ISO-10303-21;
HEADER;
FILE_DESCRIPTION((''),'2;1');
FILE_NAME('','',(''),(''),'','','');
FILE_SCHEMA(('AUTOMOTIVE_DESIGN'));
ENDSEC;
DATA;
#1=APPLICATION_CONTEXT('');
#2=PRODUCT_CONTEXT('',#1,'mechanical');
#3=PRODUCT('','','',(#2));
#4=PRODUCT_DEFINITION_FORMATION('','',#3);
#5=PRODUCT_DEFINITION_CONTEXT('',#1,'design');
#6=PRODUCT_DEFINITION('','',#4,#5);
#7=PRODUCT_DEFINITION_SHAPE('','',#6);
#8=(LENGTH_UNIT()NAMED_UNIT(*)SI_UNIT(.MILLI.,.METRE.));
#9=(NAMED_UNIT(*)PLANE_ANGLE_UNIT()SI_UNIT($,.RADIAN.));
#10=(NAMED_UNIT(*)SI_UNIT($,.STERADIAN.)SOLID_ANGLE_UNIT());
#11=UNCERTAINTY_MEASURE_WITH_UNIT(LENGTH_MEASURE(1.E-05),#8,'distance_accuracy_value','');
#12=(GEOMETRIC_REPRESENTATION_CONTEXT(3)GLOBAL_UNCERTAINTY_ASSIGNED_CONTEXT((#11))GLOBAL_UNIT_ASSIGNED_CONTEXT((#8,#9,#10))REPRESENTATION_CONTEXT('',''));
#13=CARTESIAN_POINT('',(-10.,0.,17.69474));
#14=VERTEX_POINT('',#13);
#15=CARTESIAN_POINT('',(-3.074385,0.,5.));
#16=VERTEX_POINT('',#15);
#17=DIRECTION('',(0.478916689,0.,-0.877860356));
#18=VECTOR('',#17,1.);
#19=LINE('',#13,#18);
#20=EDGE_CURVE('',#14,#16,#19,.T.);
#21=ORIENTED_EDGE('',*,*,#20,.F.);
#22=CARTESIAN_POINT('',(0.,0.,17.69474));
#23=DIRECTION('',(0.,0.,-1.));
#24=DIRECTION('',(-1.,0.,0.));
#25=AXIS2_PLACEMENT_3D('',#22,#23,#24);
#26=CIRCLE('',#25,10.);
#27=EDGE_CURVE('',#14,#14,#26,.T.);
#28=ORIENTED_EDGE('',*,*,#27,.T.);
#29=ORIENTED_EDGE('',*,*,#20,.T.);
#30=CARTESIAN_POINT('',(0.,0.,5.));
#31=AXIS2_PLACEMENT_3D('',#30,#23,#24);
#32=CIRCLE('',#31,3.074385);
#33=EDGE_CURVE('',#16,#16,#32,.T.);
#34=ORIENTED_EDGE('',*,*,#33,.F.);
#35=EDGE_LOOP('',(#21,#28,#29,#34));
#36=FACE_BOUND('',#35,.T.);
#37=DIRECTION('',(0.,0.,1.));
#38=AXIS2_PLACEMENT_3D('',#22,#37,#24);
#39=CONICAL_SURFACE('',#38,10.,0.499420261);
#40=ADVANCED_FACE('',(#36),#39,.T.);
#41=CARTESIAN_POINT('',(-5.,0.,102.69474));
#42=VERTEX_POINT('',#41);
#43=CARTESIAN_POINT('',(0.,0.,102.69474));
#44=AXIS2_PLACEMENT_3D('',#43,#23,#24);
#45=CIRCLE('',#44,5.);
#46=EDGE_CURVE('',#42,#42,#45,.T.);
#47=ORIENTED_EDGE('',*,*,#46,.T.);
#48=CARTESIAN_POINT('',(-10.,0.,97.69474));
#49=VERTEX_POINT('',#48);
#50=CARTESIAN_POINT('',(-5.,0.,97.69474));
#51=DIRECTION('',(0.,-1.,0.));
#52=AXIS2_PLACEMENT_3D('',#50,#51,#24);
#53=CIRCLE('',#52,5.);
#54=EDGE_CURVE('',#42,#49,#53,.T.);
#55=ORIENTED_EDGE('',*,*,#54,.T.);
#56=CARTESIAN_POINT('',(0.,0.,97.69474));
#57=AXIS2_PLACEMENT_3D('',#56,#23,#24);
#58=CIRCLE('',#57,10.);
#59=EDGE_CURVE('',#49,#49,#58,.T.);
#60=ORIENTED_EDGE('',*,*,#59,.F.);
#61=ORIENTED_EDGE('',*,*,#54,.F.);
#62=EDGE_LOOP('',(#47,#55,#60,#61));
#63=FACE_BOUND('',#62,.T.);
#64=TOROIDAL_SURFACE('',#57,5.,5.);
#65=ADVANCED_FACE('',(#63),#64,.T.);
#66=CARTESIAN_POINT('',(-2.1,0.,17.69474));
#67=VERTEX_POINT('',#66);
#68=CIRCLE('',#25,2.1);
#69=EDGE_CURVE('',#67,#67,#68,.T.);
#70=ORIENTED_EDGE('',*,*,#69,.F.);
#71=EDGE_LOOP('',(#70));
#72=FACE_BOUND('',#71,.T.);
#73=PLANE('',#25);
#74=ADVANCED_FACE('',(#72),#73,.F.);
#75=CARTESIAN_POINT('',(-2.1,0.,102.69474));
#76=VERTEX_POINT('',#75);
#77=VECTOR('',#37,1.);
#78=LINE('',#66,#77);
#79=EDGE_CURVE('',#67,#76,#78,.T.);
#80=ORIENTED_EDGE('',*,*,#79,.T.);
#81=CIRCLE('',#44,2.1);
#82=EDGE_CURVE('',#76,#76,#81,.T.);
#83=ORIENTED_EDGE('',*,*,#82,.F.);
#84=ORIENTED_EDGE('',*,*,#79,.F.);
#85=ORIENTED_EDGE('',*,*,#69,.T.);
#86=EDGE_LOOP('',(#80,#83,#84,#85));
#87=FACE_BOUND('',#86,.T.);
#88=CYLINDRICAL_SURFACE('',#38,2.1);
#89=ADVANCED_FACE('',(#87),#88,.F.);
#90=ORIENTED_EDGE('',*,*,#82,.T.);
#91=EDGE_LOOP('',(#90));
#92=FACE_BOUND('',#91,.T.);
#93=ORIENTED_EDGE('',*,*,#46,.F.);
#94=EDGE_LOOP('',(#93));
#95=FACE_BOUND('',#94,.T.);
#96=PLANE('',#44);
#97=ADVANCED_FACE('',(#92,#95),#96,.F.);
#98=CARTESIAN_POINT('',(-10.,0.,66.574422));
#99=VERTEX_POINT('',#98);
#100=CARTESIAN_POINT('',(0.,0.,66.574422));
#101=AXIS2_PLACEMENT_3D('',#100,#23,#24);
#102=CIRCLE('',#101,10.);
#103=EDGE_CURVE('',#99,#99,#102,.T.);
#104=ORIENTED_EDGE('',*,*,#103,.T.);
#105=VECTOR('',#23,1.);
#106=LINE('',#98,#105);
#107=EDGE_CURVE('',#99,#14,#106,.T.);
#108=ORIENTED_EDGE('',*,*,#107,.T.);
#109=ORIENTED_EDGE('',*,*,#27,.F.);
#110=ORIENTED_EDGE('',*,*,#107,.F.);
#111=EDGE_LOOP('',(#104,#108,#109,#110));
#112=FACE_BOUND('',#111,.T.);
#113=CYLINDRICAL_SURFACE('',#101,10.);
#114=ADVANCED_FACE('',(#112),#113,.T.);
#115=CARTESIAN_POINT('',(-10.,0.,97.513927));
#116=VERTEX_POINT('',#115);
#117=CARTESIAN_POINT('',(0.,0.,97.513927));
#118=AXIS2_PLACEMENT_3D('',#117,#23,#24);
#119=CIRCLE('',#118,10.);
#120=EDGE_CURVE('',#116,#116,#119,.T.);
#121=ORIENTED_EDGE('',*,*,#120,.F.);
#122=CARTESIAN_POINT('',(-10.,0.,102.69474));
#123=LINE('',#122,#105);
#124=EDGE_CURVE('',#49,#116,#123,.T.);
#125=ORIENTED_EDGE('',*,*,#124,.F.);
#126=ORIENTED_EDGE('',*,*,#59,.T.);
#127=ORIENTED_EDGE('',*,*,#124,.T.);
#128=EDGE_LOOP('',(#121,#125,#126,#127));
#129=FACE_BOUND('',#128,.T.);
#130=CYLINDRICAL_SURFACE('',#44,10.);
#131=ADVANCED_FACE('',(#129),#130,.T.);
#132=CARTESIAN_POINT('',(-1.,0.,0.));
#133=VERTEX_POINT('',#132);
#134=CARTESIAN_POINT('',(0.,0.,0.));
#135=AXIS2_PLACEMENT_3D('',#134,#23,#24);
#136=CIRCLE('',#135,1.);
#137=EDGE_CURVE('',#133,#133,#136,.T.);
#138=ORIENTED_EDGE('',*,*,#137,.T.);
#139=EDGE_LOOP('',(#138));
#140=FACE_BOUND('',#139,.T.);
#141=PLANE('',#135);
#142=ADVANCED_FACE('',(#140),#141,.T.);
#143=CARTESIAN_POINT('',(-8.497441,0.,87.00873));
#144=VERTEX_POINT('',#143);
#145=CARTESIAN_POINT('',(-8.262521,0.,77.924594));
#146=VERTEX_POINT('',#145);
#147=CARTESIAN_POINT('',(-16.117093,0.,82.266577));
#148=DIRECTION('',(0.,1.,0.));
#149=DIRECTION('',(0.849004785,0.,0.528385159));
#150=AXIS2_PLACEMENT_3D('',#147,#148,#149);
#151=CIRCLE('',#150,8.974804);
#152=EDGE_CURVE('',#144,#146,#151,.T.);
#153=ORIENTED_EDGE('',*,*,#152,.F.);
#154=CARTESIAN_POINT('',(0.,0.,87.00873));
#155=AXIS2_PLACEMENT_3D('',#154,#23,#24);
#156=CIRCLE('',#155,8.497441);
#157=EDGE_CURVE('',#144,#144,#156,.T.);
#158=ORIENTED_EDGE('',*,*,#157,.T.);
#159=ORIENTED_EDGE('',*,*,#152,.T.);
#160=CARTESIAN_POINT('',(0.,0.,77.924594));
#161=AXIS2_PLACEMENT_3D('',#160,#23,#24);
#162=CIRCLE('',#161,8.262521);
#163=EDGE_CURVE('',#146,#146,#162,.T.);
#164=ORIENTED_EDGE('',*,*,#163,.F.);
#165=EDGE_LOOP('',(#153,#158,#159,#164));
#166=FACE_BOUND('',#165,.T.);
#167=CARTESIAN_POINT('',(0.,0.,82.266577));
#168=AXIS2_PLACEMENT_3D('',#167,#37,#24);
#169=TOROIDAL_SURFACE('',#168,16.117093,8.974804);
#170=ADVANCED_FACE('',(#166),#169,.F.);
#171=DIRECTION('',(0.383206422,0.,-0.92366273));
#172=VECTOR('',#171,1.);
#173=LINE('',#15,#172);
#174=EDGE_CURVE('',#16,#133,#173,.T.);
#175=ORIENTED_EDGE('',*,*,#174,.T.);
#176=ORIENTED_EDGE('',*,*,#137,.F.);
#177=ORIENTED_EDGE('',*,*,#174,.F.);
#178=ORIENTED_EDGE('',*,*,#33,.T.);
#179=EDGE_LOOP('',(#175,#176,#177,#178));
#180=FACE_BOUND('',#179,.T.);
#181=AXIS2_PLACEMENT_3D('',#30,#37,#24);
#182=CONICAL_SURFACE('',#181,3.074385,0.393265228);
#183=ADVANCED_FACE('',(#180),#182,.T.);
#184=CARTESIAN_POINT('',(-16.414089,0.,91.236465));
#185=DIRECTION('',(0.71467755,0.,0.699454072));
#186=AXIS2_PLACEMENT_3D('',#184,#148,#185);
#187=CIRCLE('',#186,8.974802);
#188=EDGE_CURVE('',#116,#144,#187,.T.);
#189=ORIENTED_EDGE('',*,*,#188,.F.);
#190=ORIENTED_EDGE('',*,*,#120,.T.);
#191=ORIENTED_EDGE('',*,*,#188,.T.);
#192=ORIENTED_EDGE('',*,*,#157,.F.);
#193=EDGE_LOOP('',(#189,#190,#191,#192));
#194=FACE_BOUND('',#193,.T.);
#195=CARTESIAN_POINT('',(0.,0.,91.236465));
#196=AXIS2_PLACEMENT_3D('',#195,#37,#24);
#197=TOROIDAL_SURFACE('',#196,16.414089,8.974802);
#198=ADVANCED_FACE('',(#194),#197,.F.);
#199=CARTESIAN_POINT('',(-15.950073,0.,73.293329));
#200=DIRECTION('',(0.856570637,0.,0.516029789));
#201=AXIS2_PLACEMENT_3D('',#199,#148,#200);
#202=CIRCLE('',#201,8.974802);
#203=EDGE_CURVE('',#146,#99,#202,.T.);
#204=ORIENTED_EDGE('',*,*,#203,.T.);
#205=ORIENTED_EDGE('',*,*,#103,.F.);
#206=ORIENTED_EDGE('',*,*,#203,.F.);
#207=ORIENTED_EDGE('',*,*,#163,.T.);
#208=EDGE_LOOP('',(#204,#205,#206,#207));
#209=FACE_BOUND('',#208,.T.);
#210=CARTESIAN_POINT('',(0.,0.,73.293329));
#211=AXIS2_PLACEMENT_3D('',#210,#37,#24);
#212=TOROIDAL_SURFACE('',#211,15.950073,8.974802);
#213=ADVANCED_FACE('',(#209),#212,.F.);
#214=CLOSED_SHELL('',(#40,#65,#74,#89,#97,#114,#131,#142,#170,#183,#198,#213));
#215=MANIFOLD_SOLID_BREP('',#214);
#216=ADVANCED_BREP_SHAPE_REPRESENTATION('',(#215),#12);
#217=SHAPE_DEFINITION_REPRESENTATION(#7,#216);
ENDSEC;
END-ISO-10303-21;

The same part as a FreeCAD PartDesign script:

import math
import FreeCAD as App
import Part
import Sketcher
from FreeCAD import Vector
Q = App.Units.Quantity


def edges_at(feature, points):
    """Names of the edges that pass closest to the given points."""
    edges = feature.Shape.Edges
    near = lambda p: min(range(len(edges)), key=lambda i: edges[i].distToShape(Part.Vertex(*p))[0])
    return sorted({f"Edge{near(p) + 1}" for p in points})

doc = App.newDocument("Part")
body = doc.addObject("PartDesign::Body", "Body")

sketch1 = body.newObject("Sketcher::SketchObject", "Sketch")
sketch1.AttachmentSupport = (doc.getObject("XZ_Plane"), [""])
sketch1.MapMode = "FlatFace"
sketch1.addGeometry([
    Part.LineSegment(Vector(-3.1, 5, 0), Vector(-1, 0, 0)),
    Part.LineSegment(Vector(-1, 0, 0), Vector(0, 0, 0)),
    Part.LineSegment(Vector(0, 0, 0), Vector(0, 17.7, 0)),
    Part.LineSegment(Vector(0, 17.7, 0), Vector(-2.1, 17.7, 0)),
    Part.LineSegment(Vector(-2.1, 17.7, 0), Vector(-2.1, 102.7, 0)),
    Part.LineSegment(Vector(-2.1, 102.7, 0), Vector(-10, 102.7, 0)),
    Part.LineSegment(Vector(-10, 102.7, 0), Vector(-10, 97.5, 0)),
    Part.ArcOfCircle(Part.Circle(Vector(-16.4, 91.2, 0), Vector(0, 0, 1), 9), math.radians(-28), math.radians(44)),
    Part.ArcOfCircle(Part.Circle(Vector(-16.1, 82.3, 0), Vector(0, 0, 1), 9), math.radians(-29), math.radians(32)),
    Part.ArcOfCircle(Part.Circle(Vector(-16, 73.3, 0), Vector(0, 0, 1), 9), math.radians(-48), math.radians(31)),
    Part.LineSegment(Vector(-10, 66.6, 0), Vector(-10, 17.7, 0)),
    Part.LineSegment(Vector(-10, 17.7, 0), Vector(-3.1, 5, 0)),
], False)
sketch1.addConstraint([
    Sketcher.Constraint("Coincident", 0, 2, 1, 1),
    Sketcher.Constraint("Coincident", 1, 2, 2, 1),
    Sketcher.Constraint("Coincident", 2, 2, 3, 1),
    Sketcher.Constraint("Coincident", 3, 2, 4, 1),
    Sketcher.Constraint("Coincident", 4, 2, 5, 1),
    Sketcher.Constraint("Coincident", 5, 2, 6, 1),
    Sketcher.Constraint("Coincident", 6, 2, 7, 2),
    Sketcher.Constraint("Coincident", 7, 1, 8, 2),
    Sketcher.Constraint("Coincident", 8, 1, 9, 2),
    Sketcher.Constraint("Coincident", 9, 1, 10, 1),
    Sketcher.Constraint("Coincident", 10, 2, 11, 1),
    Sketcher.Constraint("Coincident", 11, 2, 0, 1),
    Sketcher.Constraint("Horizontal", 1),
    Sketcher.Constraint("Vertical", 2),
    Sketcher.Constraint("Horizontal", 3),
    Sketcher.Constraint("Vertical", 4),
    Sketcher.Constraint("Horizontal", 5),
    Sketcher.Constraint("Vertical", 6),
    Sketcher.Constraint("Vertical", 10),
    Sketcher.Constraint("Coincident", 1, 2, -1, 1),
    Sketcher.Constraint("Equal", 8, 9),
    Sketcher.Constraint("Horizontal", 3, 2, 10, 2),
    Sketcher.Constraint("Vertical", 6, 2, 9, 1),
    Sketcher.Constraint("DistanceX", 1, 1, 1, 2, Q("1 mm")),
    Sketcher.Constraint("DistanceY", 4, 1, 4, 2, Q("85 mm")),
    Sketcher.Constraint("DistanceX", 3, 2, 3, 1, Q("2.1 mm")),
    Sketcher.Constraint("DistanceX", 5, 2, 5, 1, Q("7.9 mm")),
    Sketcher.Constraint("DistanceY", -1, 1, 11, 2, Q("5 mm")),
    Sketcher.Constraint("Radius", 7, Q("8.974802 mm")),
    Sketcher.Constraint("Distance", 11, Q("14.461002 mm")),
    Sketcher.Constraint("Radius", 8, Q("8.974804 mm")),
    Sketcher.Constraint("DistanceY", 2, 1, 2, 2, Q("17.69474 mm")),
    Sketcher.Constraint("DistanceY", 9, 3, 6, 2, Q("24.220598 mm")),
    Sketcher.Constraint("DistanceY", 9, 3, 7, 1, Q("13.715401 mm")),
    Sketcher.Constraint("DistanceY", 6, 2, 6, 1, Q("5.180813 mm")),
    Sketcher.Constraint("DistanceY", 10, 2, 10, 1, Q("48.879682 mm")),
    Sketcher.Constraint("DistanceX", 7, 3, -1, 1, Q("16.414089 mm")),
    Sketcher.Constraint("DistanceX", 8, 1, -1, 1, Q("8.262521 mm")),
])
revolution = body.newObject("PartDesign::Revolution", "Revolution")
revolution.Profile = sketch1
revolution.ReferenceAxis = (sketch1, ["V_Axis"])
revolution.Angle = 360
doc.recompute()

fillet = body.newObject("PartDesign::Fillet", "Fillet")
fillet.Base = (revolution, edges_at(revolution, [(10, 0, 102.695)]))
fillet.Radius = 5

doc.recompute()
